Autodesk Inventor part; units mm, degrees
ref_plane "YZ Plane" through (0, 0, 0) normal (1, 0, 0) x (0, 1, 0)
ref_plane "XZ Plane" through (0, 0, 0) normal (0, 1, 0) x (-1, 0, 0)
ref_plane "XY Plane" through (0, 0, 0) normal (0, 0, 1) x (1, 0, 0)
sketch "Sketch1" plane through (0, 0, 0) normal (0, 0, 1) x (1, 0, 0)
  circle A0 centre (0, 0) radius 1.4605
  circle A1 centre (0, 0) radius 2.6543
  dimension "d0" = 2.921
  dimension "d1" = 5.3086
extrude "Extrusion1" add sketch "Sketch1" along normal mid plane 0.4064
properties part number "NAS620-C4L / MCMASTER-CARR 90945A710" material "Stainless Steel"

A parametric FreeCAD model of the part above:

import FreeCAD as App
import Part
import Sketcher
Q = App.Units.Quantity

doc = App.newDocument("Part")
body = doc.addObject("PartDesign::Body", "Body")

sketch1 = body.newObject("Sketcher::SketchObject", "Sketch")
sketch1.AttachmentSupport = (doc.getObject("XY_Plane"), [""])
sketch1.MapMode = "FlatFace"
sketch1.addGeometry([
    Part.Circle(App.Vector(0, 0, 0), App.Vector(0, 0, 1), 2.6543),
    Part.Circle(App.Vector(0, 0, 0), App.Vector(0, 0, 1), 1.4605),
], False)
sketch1.addConstraint([
    Sketcher.Constraint("Coincident", 0, 3, -1, 1),
    Sketcher.Constraint("Coincident", 1, 3, -1, 1),
    Sketcher.Constraint("Diameter", 0, Q("0.209 in")),
    Sketcher.Constraint("Diameter", 1, Q("0.115 in")),
])
pad1 = body.newObject("PartDesign::Pad", "Pad")
pad1.Profile = sketch1
pad1.Length = Q("0.016 in")
pad1.Midplane = True

doc.recompute()
